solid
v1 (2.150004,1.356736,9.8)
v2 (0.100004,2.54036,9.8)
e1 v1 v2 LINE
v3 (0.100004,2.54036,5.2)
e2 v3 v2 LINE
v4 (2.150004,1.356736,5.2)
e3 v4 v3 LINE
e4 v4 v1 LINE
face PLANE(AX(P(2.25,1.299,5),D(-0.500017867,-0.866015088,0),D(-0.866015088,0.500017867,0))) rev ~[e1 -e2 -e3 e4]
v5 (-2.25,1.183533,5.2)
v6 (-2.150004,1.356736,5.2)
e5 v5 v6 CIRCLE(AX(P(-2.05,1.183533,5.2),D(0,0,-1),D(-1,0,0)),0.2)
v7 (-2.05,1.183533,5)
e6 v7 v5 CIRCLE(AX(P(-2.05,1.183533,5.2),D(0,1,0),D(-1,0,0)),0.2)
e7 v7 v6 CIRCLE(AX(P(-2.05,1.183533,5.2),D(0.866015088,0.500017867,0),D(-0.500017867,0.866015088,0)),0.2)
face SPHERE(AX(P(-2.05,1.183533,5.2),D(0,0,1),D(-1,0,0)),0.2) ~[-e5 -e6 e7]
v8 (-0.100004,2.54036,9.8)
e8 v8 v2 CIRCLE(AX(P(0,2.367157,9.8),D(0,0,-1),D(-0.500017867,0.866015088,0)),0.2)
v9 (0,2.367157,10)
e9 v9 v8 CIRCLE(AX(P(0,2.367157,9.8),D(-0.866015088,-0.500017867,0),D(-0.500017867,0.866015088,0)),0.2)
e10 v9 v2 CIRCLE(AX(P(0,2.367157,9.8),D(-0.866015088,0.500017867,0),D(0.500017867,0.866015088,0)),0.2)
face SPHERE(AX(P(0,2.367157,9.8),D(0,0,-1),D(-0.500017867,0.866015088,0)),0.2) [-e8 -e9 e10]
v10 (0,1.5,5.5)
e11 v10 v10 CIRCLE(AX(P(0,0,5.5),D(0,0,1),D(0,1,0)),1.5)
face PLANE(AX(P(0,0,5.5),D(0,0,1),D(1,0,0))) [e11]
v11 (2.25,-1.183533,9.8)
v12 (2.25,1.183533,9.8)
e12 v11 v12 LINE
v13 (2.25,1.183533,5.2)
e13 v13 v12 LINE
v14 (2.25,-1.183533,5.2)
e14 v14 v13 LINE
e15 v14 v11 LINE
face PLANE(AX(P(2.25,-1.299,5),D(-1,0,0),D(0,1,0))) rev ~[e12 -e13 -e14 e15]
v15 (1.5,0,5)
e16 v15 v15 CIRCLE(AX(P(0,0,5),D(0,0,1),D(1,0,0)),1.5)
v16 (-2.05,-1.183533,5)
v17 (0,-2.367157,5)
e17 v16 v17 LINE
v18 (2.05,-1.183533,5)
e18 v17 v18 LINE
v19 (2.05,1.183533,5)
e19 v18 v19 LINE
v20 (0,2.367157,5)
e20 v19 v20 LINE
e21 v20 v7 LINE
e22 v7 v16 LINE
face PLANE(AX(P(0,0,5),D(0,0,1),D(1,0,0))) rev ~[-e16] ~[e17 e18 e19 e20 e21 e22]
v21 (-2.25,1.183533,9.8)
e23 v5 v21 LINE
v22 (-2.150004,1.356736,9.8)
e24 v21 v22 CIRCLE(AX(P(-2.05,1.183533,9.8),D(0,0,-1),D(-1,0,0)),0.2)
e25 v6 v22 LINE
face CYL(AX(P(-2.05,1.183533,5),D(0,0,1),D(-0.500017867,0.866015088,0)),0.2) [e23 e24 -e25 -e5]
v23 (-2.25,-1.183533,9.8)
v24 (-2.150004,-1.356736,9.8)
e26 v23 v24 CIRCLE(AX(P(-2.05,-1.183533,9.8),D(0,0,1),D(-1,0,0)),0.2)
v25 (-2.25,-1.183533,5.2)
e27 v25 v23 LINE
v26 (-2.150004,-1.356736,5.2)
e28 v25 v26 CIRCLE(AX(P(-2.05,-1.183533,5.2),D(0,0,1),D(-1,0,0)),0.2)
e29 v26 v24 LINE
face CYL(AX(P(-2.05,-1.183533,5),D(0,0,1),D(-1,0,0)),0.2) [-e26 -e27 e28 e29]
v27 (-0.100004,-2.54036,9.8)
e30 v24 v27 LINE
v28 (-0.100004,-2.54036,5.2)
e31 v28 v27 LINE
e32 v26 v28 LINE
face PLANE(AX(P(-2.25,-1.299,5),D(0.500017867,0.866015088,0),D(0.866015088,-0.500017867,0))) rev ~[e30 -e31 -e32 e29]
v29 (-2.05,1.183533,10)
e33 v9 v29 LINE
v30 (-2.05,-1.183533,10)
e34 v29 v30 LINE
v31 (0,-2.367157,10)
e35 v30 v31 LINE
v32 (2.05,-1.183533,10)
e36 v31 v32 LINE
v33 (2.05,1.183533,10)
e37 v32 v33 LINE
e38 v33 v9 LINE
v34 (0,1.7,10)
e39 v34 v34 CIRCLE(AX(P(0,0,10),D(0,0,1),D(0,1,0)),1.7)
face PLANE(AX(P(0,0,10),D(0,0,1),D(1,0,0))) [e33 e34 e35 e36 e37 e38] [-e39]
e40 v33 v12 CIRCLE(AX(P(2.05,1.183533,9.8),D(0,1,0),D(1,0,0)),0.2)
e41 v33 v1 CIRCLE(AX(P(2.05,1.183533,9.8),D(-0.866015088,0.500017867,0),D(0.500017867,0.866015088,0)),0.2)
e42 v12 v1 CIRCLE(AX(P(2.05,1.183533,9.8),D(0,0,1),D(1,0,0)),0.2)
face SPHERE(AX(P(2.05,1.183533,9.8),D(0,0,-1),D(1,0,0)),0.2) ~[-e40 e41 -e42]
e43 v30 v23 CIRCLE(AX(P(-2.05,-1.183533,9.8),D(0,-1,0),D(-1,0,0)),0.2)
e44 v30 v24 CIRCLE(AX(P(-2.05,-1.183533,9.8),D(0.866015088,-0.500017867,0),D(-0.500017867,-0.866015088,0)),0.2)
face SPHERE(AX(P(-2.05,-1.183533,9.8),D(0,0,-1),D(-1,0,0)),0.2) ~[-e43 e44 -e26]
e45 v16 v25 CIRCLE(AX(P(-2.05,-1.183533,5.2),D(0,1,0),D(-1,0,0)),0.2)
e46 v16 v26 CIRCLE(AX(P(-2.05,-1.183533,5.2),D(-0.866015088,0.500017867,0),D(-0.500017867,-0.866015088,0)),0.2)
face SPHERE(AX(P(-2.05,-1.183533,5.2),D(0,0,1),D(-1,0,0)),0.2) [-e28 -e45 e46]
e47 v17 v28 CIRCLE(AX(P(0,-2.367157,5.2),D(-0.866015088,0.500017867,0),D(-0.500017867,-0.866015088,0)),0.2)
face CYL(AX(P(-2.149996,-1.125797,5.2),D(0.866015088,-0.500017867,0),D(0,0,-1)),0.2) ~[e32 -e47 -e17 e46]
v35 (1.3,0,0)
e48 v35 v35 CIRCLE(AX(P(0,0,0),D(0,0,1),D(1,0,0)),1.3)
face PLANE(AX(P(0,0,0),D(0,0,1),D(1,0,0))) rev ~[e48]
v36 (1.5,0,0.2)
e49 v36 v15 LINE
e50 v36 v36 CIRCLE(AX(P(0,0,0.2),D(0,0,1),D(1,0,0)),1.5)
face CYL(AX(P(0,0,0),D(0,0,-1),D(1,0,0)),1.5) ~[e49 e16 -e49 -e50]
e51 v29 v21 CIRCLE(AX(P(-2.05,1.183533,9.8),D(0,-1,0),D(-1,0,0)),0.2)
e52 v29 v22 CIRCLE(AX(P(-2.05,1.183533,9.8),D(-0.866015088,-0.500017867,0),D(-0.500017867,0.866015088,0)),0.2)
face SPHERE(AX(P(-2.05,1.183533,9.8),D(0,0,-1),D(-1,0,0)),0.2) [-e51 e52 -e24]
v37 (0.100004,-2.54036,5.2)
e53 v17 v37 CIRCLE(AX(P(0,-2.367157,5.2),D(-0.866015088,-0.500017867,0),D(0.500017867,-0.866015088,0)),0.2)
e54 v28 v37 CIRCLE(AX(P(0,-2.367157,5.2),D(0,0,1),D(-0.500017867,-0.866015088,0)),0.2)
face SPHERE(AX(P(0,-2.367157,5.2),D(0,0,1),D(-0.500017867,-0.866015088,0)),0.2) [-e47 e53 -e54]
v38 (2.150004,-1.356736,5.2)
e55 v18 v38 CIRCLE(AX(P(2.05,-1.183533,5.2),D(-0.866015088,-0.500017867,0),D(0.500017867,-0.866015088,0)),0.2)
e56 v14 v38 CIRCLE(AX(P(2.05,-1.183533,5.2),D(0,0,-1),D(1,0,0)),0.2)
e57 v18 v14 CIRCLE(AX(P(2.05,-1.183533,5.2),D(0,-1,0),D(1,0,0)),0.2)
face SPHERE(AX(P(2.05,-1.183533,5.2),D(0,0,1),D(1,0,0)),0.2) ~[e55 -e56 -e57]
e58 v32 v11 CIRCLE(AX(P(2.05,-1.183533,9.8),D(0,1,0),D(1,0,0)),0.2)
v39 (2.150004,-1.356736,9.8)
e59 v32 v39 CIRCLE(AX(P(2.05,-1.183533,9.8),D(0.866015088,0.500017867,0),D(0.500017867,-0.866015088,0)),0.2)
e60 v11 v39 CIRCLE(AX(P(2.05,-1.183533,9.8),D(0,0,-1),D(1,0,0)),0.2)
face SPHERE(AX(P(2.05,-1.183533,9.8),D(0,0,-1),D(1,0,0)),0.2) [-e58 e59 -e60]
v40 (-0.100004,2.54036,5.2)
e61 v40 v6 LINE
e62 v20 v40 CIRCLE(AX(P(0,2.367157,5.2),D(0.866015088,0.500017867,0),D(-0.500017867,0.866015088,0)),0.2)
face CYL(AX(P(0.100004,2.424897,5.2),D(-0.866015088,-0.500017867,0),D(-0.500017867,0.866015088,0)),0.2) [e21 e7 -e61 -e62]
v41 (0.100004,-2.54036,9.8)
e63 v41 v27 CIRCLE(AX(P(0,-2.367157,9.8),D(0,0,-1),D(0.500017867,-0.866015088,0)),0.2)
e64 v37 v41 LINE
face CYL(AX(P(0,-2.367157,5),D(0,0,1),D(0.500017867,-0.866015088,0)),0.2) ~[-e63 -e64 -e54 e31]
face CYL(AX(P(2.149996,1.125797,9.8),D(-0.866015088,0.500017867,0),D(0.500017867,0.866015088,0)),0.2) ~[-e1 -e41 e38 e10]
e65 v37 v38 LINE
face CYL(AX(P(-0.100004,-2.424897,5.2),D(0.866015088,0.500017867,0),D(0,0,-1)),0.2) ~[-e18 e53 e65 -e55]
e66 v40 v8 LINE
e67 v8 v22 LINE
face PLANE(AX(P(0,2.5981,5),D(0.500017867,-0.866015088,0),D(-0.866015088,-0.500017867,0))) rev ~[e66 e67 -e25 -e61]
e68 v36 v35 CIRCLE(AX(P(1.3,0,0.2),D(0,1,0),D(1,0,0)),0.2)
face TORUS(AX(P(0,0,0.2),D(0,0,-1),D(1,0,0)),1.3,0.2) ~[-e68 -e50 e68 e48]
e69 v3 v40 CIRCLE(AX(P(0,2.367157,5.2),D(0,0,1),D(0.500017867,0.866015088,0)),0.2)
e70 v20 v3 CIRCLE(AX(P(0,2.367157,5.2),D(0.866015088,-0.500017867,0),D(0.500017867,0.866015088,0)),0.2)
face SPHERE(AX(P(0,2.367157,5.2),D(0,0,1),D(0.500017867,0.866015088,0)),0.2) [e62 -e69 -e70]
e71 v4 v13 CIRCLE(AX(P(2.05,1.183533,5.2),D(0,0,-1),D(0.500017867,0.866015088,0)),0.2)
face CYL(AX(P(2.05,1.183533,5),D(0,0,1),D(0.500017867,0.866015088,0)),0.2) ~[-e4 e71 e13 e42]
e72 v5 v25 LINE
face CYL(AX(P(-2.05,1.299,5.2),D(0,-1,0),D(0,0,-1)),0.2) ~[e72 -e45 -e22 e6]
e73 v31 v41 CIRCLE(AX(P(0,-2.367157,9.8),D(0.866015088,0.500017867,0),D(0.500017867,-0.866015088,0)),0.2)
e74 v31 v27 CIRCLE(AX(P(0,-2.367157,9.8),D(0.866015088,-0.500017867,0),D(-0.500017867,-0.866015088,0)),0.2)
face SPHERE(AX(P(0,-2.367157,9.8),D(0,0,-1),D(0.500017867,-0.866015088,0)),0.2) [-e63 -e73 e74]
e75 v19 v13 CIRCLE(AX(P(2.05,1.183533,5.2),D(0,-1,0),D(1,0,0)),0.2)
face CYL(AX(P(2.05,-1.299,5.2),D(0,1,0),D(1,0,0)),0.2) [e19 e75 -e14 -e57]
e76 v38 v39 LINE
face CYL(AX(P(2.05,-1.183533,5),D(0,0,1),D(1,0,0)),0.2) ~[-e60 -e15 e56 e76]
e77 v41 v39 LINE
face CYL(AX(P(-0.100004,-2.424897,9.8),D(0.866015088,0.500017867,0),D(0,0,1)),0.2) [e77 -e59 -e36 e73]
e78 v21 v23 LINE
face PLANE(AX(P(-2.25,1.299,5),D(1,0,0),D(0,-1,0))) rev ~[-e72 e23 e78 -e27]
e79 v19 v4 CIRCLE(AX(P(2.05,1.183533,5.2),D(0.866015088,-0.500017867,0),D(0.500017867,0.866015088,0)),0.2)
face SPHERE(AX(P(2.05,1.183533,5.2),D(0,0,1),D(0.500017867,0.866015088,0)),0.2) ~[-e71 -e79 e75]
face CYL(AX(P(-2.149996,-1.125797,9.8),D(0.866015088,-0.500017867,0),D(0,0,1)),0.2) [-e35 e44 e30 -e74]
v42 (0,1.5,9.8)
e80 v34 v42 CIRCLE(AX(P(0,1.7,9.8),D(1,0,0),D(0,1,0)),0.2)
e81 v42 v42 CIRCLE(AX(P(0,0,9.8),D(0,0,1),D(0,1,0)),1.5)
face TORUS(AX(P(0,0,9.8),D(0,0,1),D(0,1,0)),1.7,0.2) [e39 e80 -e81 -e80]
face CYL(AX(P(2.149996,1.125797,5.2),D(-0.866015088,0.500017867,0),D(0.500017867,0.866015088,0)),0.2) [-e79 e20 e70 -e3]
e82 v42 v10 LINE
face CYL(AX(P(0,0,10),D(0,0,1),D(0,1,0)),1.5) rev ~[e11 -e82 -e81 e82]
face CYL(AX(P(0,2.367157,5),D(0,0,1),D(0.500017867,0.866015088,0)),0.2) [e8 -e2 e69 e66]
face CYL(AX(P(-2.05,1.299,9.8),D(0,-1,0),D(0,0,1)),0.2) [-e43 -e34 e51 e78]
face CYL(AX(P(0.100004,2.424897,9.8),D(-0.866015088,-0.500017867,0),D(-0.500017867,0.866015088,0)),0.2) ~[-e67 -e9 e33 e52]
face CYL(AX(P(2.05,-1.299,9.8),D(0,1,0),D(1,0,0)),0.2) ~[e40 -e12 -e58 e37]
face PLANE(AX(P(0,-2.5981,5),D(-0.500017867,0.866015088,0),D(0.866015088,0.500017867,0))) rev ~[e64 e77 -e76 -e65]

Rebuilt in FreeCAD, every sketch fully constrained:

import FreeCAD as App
import Part
import Sketcher

V = App.Vector
Q = App.Units.Quantity


def edges_at(feature, points):
    """Names of the edges that pass closest to the given points."""
    edges = feature.Shape.Edges
    near = lambda p: min(range(len(edges)), key=lambda i: edges[i].distToShape(Part.Vertex(*p))[0])
    return sorted({f"Edge{near(p) + 1}" for p in points})

doc = App.newDocument("Part")
params = doc.addObject("Spreadsheet::Sheet", "Params")
for row, (alias, value) in enumerate([
    ("sketch1_diameter", "3 mm"),
    ("pad1_length", "5 mm"),
    ("pad2_length", "5 mm"),
    ("sketch3_diameter", "3 mm"),
    ("pocket1_length", "4.5 mm"),
    ("fillet_radius", "0.2 mm"),
], start=1):
    params.set(f"A{row}", alias)
    params.set(f"B{row}", "=" + value)
    params.setAlias(f"B{row}", alias)

body = doc.addObject("PartDesign::Body", "Body")

# Sketch on XY plane
sketch1 = body.newObject("Sketcher::SketchObject", "Sketch")
sketch1.AttachmentSupport = (doc.getObject("XY_Plane"), [""])
sketch1.MapMode = "FlatFace"
sketch1.addGeometry(Part.Circle(V(0, 0, 0), V(0, 0, 1), 1.5), False)
sketch1.addConstraint(Sketcher.Constraint("Coincident", 0, 3, -1, 1))
sketch1.addConstraint(Sketcher.Constraint("Diameter", 0, 3.0))
sketch1.setExpression("Constraints[1]", "Params.sketch1_diameter")
pad1 = body.newObject("PartDesign::Pad", "Pad")
pad1.Profile = sketch1
pad1.setExpression("Length", "Params.pad1_length")

# Sketch on XY plane
sketch2 = body.newObject("Sketcher::SketchObject", "Sketch001")
sketch2.AttachmentSupport = (doc.getObject("XY_Plane"), [""])
sketch2.MapMode = "FlatFace"
sketch2.AttachmentOffset = App.Placement(V(0, 0, 5), App.Rotation())
sketch2.addGeometry(Part.LineSegment(V(2.2, -1.3, 0), V(2.2, 1.3, 0)), False)
sketch2.addGeometry(Part.LineSegment(V(2.2, 1.3, 0), V(0, 2.6, 0)), False)
sketch2.addGeometry(Part.LineSegment(V(0, 2.6, 0), V(-2.2, 1.3, 0)), False)
sketch2.addGeometry(Part.LineSegment(V(-2.2, 1.3, 0), V(-2.2, -1.3, 0)), False)
sketch2.addGeometry(Part.LineSegment(V(-2.2, -1.3, 0), V(0, -2.6, 0)), False)
sketch2.addGeometry(Part.LineSegment(V(0, -2.6, 0), V(2.2, -1.3, 0)), False)
sketch2.addConstraint(Sketcher.Constraint("Coincident", 0, 2, 1, 1))
sketch2.addConstraint(Sketcher.Constraint("Coincident", 1, 2, 2, 1))
sketch2.addConstraint(Sketcher.Constraint("Coincident", 2, 2, 3, 1))
sketch2.addConstraint(Sketcher.Constraint("Coincident", 3, 2, 4, 1))
sketch2.addConstraint(Sketcher.Constraint("Coincident", 4, 2, 5, 1))
sketch2.addConstraint(Sketcher.Constraint("Coincident", 5, 2, 0, 1))
sketch2.addConstraint(Sketcher.Constraint("Vertical", 0))
sketch2.addConstraint(Sketcher.Constraint("Vertical", 3))
sketch2.addConstraint(Sketcher.Constraint("Symmetric", 0, 2, 3, 2, -1, 1))
sketch2.addConstraint(Sketcher.Constraint("Symmetric", 1, 2, 4, 2, -1, 1))
sketch2.addConstraint(Sketcher.Constraint("PointOnObject", 1, 2, -2))
sketch2.addConstraint(Sketcher.Constraint("Parallel", 2, 5))
sketch2.addConstraint(Sketcher.Constraint("Horizontal", 0, 2, 2, 2))
sketch2.addConstraint(Sketcher.Constraint("Angle", 1, Q("149.9988 deg")))
sketch2.addConstraint(Sketcher.Constraint("DistanceX", 2, 2, 0, 2, 4.5))
sketch2.addConstraint(Sketcher.Constraint("DistanceY", 0, 1, 0, 2, 2.598))
pad2 = body.newObject("PartDesign::Pad", "Pad001")
pad2.Profile = sketch2
pad2.setExpression("Length", "Params.pad2_length")

# Sketch on XY plane
sketch3 = body.newObject("Sketcher::SketchObject", "Sketch002")
sketch3.AttachmentSupport = (doc.getObject("XY_Plane"), [""])
sketch3.MapMode = "FlatFace"
sketch3.AttachmentOffset = App.Placement(V(0, 0, 10), App.Rotation())
sketch3.addGeometry(Part.Circle(V(0, 0, 0), V(0, 0, 1), 1.5), False)
sketch3.addConstraint(Sketcher.Constraint("Coincident", 0, 3, -1, 1))
sketch3.addConstraint(Sketcher.Constraint("Diameter", 0, 3.0))
sketch3.setExpression("Constraints[1]", "Params.sketch3_diameter")
pocket1 = body.newObject("PartDesign::Pocket", "Pocket")
pocket1.Profile = sketch3
pocket1.setExpression("Length", "Params.pocket1_length")
doc.recompute()

fillet = body.newObject("PartDesign::Fillet", "Fillet")
fillet.Base = (pocket1, edges_at(pocket1, [
    (2.25, -1.299, 7.5),
    (2.25, 1.299, 7.5),
    (2.25, 0, 10),
    (1.125, 1.949, 10),
    (0, -1.5, 10),
    (0, 2.598, 7.5),
    (1.125, 1.949, 5),
    (2.25, 0, 5),
    (1.125, -1.949, 5),
    (0, -2.598, 7.5),
    (1.125, -1.949, 10),
    (-1.125, -1.949, 10),
    (-1.125, -1.949, 5),
    (-2.25, -1.299, 7.5),
    (-2.25, 0, 10),
    (-1.125, 1.949, 10),
    (-2.25, 1.299, 7.5),
    (-2.25, 0, 5),
    (-1.125, 1.949, 5),
    (-1.5, 0, 0),
]))
fillet.setExpression("Radius", "Params.fillet_radius")

doc.recompute()
